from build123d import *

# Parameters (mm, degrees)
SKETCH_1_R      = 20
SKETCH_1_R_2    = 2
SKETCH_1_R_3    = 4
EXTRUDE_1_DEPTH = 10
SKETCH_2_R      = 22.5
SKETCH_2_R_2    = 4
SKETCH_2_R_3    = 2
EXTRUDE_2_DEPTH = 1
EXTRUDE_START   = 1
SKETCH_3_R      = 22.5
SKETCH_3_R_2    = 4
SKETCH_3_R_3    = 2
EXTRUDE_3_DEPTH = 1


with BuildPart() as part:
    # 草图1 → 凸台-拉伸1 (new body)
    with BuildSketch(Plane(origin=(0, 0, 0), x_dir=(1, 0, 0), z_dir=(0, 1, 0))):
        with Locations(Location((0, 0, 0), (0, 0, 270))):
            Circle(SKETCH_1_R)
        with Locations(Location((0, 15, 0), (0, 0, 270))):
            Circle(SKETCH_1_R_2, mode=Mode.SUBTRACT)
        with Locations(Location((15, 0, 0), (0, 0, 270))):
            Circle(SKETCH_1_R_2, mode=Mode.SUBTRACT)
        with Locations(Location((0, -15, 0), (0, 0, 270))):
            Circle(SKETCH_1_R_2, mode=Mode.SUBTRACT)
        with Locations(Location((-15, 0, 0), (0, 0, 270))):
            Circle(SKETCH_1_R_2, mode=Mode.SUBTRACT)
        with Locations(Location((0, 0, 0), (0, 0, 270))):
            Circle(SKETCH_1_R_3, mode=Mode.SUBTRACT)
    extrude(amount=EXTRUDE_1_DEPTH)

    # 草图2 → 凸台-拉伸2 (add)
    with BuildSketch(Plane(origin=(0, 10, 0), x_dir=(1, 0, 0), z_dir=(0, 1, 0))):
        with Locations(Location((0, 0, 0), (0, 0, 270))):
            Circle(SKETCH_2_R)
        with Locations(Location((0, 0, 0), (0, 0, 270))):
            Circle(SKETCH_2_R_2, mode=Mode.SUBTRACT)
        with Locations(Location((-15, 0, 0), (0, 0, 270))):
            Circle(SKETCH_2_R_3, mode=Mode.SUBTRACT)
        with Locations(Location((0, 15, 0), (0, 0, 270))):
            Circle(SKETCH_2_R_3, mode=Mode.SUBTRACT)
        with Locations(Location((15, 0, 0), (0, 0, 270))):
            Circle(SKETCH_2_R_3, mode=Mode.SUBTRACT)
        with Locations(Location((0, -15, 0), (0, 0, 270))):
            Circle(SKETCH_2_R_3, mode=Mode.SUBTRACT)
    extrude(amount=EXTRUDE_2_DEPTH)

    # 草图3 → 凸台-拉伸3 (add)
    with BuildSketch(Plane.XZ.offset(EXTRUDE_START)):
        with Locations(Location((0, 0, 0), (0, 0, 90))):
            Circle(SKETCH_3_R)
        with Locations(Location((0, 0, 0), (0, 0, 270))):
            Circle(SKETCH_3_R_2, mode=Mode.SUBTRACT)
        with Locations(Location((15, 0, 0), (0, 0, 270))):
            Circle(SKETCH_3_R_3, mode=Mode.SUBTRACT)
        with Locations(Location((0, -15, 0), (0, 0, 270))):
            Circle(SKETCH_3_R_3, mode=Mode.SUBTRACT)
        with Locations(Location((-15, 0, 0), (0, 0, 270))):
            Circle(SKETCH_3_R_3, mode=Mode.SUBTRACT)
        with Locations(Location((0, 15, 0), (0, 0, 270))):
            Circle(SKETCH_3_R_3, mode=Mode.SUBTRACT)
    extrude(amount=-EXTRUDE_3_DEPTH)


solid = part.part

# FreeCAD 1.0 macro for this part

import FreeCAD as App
import Part
import Sketcher

V = App.Vector
Q = App.Units.Quantity

doc = App.newDocument("Part")
body = doc.addObject("PartDesign::Body", "Body")

# Sketch on XZ plane
sketch1 = doc.addObject("Sketcher::SketchObject", "Sketch")
body.addObject(sketch1)
sketch1.AttachmentSupport = (doc.XZ_Plane, [""])
sketch1.MapMode = "FlatFace"
sketch1.addGeometry([
    Part.Circle(V(0, 0, 0), V(0, 0, 1), 20),  # 0
    Part.Circle(V(0, -15, 0), V(0, 0, 1), 2),  # 1
    Part.Circle(V(-15, 0, 0), V(0, 0, 1), 2),  # 2
    Part.Circle(V(15, 0, 0), V(0, 0, 1), 2),  # 3
    Part.Circle(V(0, 0, 0), V(0, 0, 1), 4),  # 4
    Part.Circle(V(0, 15, 0), V(0, 0, 1), 2),  # 5
], False)
sketch1.addConstraint([
    Sketcher.Constraint("Coincident", 0, 3, -1, 1),
    Sketcher.Constraint("Coincident", 4, 3, -1, 1),
    Sketcher.Constraint("Equal", 1, 2),
    Sketcher.Constraint("Equal", 2, 3),
    Sketcher.Constraint("Equal", 3, 5),
    Sketcher.Constraint("Symmetric", 2, 3, 3, 3, -1, 1),
    Sketcher.Constraint("Symmetric", 1, 3, 5, 3, -1, 1),
    Sketcher.Constraint("PointOnObject", 1, 3, -2),
    Sketcher.Constraint("PointOnObject", 2, 3, -1),
    Sketcher.Constraint("Diameter", 0, Q("40 mm")),
    Sketcher.Constraint("Diameter", 1, Q("4 mm")),
    Sketcher.Constraint("Diameter", 4, Q("8 mm")),
    Sketcher.Constraint("DistanceY", 1, 3, -1, 1, Q("15 mm")),
    Sketcher.Constraint("DistanceX", 2, 3, -1, 1, Q("15 mm")),
])
pad1 = doc.addObject("PartDesign::Pad", "Pad")
body.addObject(pad1)
pad1.Profile = sketch1
pad1.Length = 10
pad1.Reversed = True

# Sketch on XZ plane
sketch2 = doc.addObject("Sketcher::SketchObject", "Sketch001")
body.addObject(sketch2)
sketch2.AttachmentSupport = (doc.XZ_Plane, [""])
sketch2.MapMode = "FlatFace"
sketch2.AttachmentOffset = App.Placement(V(0, 0, -10), App.Rotation())
sketch2.addGeometry([
    Part.Circle(V(0, 0, 0), V(0, 0, 1), 22.5),  # 0
    Part.Circle(V(0, -15, 0), V(0, 0, 1), 2),  # 1
    Part.Circle(V(-15, 0, 0), V(0, 0, 1), 2),  # 2
    Part.Circle(V(15, 0, 0), V(0, 0, 1), 2),  # 3
    Part.Circle(V(0, 0, 0), V(0, 0, 1), 4),  # 4
    Part.Circle(V(0, 15, 0), V(0, 0, 1), 2),  # 5
], False)
sketch2.addConstraint([
    Sketcher.Constraint("Coincident", 0, 3, -1, 1),
    Sketcher.Constraint("Coincident", 4, 3, -1, 1),
    Sketcher.Constraint("Equal", 1, 2),
    Sketcher.Constraint("Equal", 2, 3),
    Sketcher.Constraint("Equal", 3, 5),
    Sketcher.Constraint("Symmetric", 2, 3, 3, 3, -1, 1),
    Sketcher.Constraint("Symmetric", 1, 3, 5, 3, -1, 1),
    Sketcher.Constraint("PointOnObject", 1, 3, -2),
    Sketcher.Constraint("PointOnObject", 2, 3, -1),
    Sketcher.Constraint("Diameter", 0, Q("45 mm")),
    Sketcher.Constraint("Diameter", 1, Q("4 mm")),
    Sketcher.Constraint("Diameter", 4, Q("8 mm")),
    Sketcher.Constraint("DistanceY", 1, 3, -1, 1, Q("15 mm")),
    Sketcher.Constraint("DistanceX", 2, 3, -1, 1, Q("15 mm")),
])
pad2 = doc.addObject("PartDesign::Pad", "Pad001")
body.addObject(pad2)
pad2.Profile = sketch2
pad2.Length = 1
pad2.Reversed = True

# Sketch on XZ plane
sketch3 = doc.addObject("Sketcher::SketchObject", "Sketch002")
body.addObject(sketch3)
sketch3.AttachmentSupport = (doc.XZ_Plane, [""])
sketch3.MapMode = "FlatFace"
sketch3.AttachmentOffset = App.Placement(V(0, 0, 1), App.Rotation())
sketch3.addGeometry([
    Part.Circle(V(0, 0, 0), V(0, 0, 1), 22.5),  # 0
    Part.Circle(V(0, -15, 0), V(0, 0, 1), 2),  # 1
    Part.Circle(V(15, 0, 0), V(0, 0, 1), 2),  # 2
    Part.Circle(V(-15, 0, 0), V(0, 0, 1), 2),  # 3
    Part.Circle(V(0, 0, 0), V(0, 0, 1), 4),  # 4
    Part.Circle(V(0, 15, 0), V(0, 0, 1), 2),  # 5
], False)
sketch3.addConstraint([
    Sketcher.Constraint("Coincident", 0, 3, -1, 1),
    Sketcher.Constraint("Coincident", 4, 3, -1, 1),
    Sketcher.Constraint("Equal", 1, 2),
    Sketcher.Constraint("Equal", 2, 3),
    Sketcher.Constraint("Equal", 3, 5),
    Sketcher.Constraint("Symmetric", 2, 3, 3, 3, -1, 1),
    Sketcher.Constraint("Symmetric", 1, 3, 5, 3, -1, 1),
    Sketcher.Constraint("PointOnObject", 1, 3, -2),
    Sketcher.Constraint("PointOnObject", 2, 3, -1),
    Sketcher.Constraint("Diameter", 0, Q("45 mm")),
    Sketcher.Constraint("Diameter", 1, Q("4 mm")),
    Sketcher.Constraint("Diameter", 4, Q("8 mm")),
    Sketcher.Constraint("DistanceY", 1, 3, -1, 1, Q("15 mm")),
    Sketcher.Constraint("DistanceX", -1, 1, 2, 3, Q("15 mm")),
])
pad3 = doc.addObject("PartDesign::Pad", "Pad002")
body.addObject(pad3)
pad3.Profile = sketch3
pad3.Length = 1
pad3.Reversed = True

doc.recompute()
